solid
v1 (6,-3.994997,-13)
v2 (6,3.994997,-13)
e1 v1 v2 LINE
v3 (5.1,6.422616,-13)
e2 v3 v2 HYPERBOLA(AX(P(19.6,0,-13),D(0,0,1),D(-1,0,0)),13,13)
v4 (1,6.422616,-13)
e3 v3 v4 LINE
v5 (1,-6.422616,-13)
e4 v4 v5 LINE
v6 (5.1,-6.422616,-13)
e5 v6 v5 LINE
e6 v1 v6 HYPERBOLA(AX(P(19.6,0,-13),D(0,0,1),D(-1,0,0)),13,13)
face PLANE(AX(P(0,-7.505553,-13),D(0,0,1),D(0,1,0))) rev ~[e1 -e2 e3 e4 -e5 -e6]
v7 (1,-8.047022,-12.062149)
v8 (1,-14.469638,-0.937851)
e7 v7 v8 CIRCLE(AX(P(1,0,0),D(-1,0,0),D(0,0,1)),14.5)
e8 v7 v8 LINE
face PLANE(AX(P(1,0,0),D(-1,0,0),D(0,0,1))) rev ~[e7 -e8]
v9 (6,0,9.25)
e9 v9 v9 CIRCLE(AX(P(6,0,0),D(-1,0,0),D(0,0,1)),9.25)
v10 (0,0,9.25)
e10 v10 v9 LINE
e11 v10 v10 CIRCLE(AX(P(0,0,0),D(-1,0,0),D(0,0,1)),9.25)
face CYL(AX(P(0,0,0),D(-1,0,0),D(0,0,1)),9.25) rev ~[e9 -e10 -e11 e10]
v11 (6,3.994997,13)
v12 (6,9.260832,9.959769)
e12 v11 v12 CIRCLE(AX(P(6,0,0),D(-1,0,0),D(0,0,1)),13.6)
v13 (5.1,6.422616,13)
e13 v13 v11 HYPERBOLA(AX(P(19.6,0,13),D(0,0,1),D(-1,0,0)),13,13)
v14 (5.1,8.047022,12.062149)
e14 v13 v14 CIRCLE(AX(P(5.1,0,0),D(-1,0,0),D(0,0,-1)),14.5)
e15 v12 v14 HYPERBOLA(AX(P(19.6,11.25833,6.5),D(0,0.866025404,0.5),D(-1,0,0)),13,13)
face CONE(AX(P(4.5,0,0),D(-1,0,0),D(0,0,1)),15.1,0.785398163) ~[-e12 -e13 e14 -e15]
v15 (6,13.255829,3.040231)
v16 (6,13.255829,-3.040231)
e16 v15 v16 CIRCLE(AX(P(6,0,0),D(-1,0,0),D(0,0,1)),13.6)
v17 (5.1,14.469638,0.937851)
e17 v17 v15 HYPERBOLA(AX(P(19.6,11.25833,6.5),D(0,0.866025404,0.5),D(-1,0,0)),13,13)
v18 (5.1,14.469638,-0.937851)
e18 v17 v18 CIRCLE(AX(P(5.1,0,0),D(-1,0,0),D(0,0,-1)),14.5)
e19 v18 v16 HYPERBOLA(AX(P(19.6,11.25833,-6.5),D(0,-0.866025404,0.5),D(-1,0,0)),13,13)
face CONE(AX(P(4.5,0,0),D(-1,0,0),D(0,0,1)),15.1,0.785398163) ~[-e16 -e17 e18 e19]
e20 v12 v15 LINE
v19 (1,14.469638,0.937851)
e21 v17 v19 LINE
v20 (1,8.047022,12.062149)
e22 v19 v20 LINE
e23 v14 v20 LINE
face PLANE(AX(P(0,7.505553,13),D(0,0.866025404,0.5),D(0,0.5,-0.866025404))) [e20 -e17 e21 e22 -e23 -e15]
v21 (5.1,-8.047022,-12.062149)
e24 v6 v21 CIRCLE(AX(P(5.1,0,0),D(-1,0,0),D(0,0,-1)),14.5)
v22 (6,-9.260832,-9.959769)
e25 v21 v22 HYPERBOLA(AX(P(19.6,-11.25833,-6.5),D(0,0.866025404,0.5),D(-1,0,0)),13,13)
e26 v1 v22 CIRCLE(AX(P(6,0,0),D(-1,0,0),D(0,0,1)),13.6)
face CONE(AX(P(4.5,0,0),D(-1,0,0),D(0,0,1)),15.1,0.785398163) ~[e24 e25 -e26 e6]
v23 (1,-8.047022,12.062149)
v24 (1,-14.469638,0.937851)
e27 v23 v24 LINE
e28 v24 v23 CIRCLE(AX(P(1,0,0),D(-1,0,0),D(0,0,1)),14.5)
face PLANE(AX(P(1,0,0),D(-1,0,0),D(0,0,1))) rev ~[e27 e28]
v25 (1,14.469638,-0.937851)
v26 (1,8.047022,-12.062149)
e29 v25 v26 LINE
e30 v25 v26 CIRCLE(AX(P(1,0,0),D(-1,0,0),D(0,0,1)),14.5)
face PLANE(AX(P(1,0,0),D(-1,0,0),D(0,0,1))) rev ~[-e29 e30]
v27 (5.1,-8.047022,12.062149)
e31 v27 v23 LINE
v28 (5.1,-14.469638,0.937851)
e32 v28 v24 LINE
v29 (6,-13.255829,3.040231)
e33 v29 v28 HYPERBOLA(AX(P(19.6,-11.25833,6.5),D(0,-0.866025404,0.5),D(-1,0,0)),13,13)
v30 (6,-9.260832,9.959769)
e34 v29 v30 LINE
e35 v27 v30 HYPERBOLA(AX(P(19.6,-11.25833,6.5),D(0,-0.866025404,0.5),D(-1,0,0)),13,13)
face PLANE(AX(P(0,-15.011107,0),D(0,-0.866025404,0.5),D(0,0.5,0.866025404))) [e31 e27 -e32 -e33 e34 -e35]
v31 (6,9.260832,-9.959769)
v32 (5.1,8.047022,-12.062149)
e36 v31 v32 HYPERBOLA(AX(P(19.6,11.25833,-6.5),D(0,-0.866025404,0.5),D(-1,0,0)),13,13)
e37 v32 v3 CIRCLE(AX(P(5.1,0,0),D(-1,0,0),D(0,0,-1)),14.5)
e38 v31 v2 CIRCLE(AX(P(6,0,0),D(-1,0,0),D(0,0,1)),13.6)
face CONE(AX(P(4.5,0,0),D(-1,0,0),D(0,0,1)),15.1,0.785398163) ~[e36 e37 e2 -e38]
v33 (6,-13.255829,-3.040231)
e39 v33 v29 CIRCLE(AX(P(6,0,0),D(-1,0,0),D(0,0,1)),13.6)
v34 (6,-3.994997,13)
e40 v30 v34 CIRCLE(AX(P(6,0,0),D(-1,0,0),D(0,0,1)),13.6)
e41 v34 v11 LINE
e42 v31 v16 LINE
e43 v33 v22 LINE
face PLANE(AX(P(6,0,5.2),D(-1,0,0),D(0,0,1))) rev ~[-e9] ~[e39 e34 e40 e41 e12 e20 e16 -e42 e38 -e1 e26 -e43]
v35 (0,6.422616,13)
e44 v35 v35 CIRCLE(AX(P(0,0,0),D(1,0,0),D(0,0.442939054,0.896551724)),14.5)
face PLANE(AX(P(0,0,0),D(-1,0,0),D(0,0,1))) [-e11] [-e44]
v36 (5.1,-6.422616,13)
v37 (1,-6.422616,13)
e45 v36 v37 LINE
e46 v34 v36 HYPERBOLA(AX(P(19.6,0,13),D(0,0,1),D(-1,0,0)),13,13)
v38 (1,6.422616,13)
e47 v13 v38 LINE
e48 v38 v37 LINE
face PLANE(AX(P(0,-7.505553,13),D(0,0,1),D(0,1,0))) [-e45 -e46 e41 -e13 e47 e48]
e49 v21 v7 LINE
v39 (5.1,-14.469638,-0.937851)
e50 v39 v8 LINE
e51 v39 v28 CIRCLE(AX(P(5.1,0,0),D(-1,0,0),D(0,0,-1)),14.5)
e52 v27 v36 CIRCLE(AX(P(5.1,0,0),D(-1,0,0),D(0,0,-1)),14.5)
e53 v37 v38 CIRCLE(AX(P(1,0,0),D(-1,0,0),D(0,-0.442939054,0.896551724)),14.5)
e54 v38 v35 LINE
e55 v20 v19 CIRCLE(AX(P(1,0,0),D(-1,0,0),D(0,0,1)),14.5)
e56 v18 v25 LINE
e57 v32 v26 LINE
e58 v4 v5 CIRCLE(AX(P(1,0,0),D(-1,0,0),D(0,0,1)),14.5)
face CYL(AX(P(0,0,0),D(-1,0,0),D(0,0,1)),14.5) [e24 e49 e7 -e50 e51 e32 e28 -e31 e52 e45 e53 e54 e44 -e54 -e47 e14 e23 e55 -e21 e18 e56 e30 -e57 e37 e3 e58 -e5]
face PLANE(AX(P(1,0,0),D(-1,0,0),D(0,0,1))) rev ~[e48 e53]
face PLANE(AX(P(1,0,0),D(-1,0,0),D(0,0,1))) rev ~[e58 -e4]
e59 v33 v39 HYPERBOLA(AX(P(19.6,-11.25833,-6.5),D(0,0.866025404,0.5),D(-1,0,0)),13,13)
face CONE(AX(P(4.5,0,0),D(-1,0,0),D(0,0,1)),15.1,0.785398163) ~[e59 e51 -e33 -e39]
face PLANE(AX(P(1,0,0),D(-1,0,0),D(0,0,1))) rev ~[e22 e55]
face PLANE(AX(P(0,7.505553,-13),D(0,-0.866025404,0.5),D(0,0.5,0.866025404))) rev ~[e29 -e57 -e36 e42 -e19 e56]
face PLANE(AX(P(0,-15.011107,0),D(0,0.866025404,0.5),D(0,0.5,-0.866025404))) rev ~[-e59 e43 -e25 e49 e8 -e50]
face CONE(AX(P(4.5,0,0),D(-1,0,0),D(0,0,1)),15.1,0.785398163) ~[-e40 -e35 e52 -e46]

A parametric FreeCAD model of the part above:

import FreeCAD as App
import Part
import Sketcher
from FreeCAD import Vector
Q = App.Units.Quantity

doc = App.newDocument("Part")
body = doc.addObject("PartDesign::Body", "Body")

# Sketch on YZ plane
sketch1 = body.newObject("Sketcher::SketchObject", "Sketch")
sketch1.AttachmentSupport = (doc.getObject("YZ_Plane"), [""])
sketch1.MapMode = "FlatFace"
sketch1.addGeometry(Part.LineSegment(Vector(-8, 13, 0), Vector(-15, 0, 0)), False)
sketch1.addGeometry(Part.LineSegment(Vector(-15, 0, 0), Vector(-8, -13, 0)), False)
sketch1.addGeometry(Part.LineSegment(Vector(-8, -13, 0), Vector(8, -13, 0)), False)
sketch1.addGeometry(Part.LineSegment(Vector(8, -13, 0), Vector(15, 0, 0)), False)
sketch1.addGeometry(Part.LineSegment(Vector(15, 0, 0), Vector(8, 13, 0)), False)
sketch1.addGeometry(Part.LineSegment(Vector(8, 13, 0), Vector(-8, 13, 0)), False)
sketch1.addConstraint(Sketcher.Constraint("Coincident", 0, 2, 1, 1))
sketch1.addConstraint(Sketcher.Constraint("Coincident", 1, 2, 2, 1))
sketch1.addConstraint(Sketcher.Constraint("Coincident", 2, 2, 3, 1))
sketch1.addConstraint(Sketcher.Constraint("Coincident", 3, 2, 4, 1))
sketch1.addConstraint(Sketcher.Constraint("Coincident", 4, 2, 5, 1))
sketch1.addConstraint(Sketcher.Constraint("Coincident", 5, 2, 0, 1))
sketch1.addConstraint(Sketcher.Constraint("Horizontal", 2))
sketch1.addConstraint(Sketcher.Constraint("Horizontal", 5))
sketch1.addConstraint(Sketcher.Constraint("Symmetric", 0, 2, 3, 2, -1, 1))
sketch1.addConstraint(Sketcher.Constraint("Symmetric", 1, 2, 4, 2, -1, 1))
sketch1.addConstraint(Sketcher.Constraint("PointOnObject", 0, 2, -1))
sketch1.addConstraint(Sketcher.Constraint("Parallel", 0, 3))
sketch1.addConstraint(Sketcher.Constraint("Vertical", 2, 2, 4, 2))
sketch1.addConstraint(Sketcher.Constraint("Angle", 0, Q("-120 deg")))
sketch1.addConstraint(Sketcher.Constraint("DistanceY", 1, 2, -1, 1, Q("13 mm")))
sketch1.addConstraint(Sketcher.Constraint("DistanceX", 2, 1, 2, 2, Q("15.011107 mm")))
pad1 = body.newObject("PartDesign::Pad", "Pad")
pad1.Profile = sketch1
pad1.Length = 6

# Sketch on YZ plane
sketch2 = body.newObject("Sketcher::SketchObject", "Sketch001")
sketch2.AttachmentSupport = (doc.getObject("YZ_Plane"), [""])
sketch2.MapMode = "FlatFace"
sketch2.addGeometry(Part.Circle(Vector(0, 0, 0), Vector(0, 0, 1), 14), False)
sketch2.addConstraint(Sketcher.Constraint("Coincident", 0, 3, -1, 1))
sketch2.addConstraint(Sketcher.Constraint("Diameter", 0, Q("29 mm")))
pad2 = body.newObject("PartDesign::Pad", "Pad001")
pad2.Profile = sketch2
pad2.Length = 1

# Sketch on YZ plane
sketch3 = body.newObject("Sketcher::SketchObject", "Sketch002")
sketch3.AttachmentSupport = (doc.getObject("YZ_Plane"), [""])
sketch3.MapMode = "FlatFace"
sketch3.addGeometry(Part.Circle(Vector(0, 0, 0), Vector(0, 0, 1), 15), False)
sketch3.addGeometry(Part.Circle(Vector(0, 0, 0), Vector(0, 0, 1), 14), False)
sketch3.addConstraint(Sketcher.Constraint("Coincident", 0, 3, -1, 1))
sketch3.addConstraint(Sketcher.Constraint("Coincident", 1, 3, -1, 1))
sketch3.addConstraint(Sketcher.Constraint("Diameter", 1, Q("29 mm")))
sketch3.addConstraint(Sketcher.Constraint("Diameter", 0, Q("30.022214 mm")))
pocket1 = body.newObject("PartDesign::Pocket", "Pocket")
pocket1.Profile = sketch3
pocket1.Type = "ThroughAll"
pocket1.Reversed = True

# Sketch on YZ plane
sketch4 = body.newObject("Sketcher::SketchObject", "Sketch003")
sketch4.AttachmentSupport = (doc.getObject("YZ_Plane"), [""])
sketch4.MapMode = "FlatFace"
sketch4.addGeometry(Part.Circle(Vector(0, 0, 0), Vector(0, 0, 1), 9), False)
sketch4.addConstraint(Sketcher.Constraint("Coincident", 0, 3, -1, 1))
sketch4.addConstraint(Sketcher.Constraint("Diameter", 0, Q("18.5 mm")))
pocket2 = body.newObject("PartDesign::Pocket", "Pocket001")
pocket2.Profile = sketch4
pocket2.Type = "ThroughAll"
pocket2.Reversed = True

# Sketch on XY plane
sketch5 = body.newObject("Sketcher::SketchObject", "Sketch004")
sketch5.AttachmentSupport = (doc.getObject("XY_Plane"), [""])
sketch5.MapMode = "FlatFace"
sketch5.addGeometry(Part.LineSegment(Vector(4.5, 15.1, 0), Vector(6, 13.6, 0)), False)
sketch5.addGeometry(Part.LineSegment(Vector(6, 13.6, 0), Vector(6, 15.1, 0)), False)
sketch5.addGeometry(Part.LineSegment(Vector(6, 15.1, 0), Vector(4.5, 15.1, 0)), False)
sketch5.addConstraint(Sketcher.Constraint("Coincident", 0, 2, 1, 1))
sketch5.addConstraint(Sketcher.Constraint("Coincident", 1, 2, 2, 1))
sketch5.addConstraint(Sketcher.Constraint("Coincident", 2, 2, 0, 1))
sketch5.addConstraint(Sketcher.Constraint("Vertical", 1))
sketch5.addConstraint(Sketcher.Constraint("Horizontal", 2))
sketch5.addConstraint(Sketcher.Constraint("Equal", 2, 1))
sketch5.addConstraint(Sketcher.Constraint("DistanceX", 2, 2, 2, 1, Q("1.5 mm")))
sketch5.addConstraint(Sketcher.Constraint("DistanceX", -1, 1, 0, 2, Q("6 mm")))
sketch5.addConstraint(Sketcher.Constraint("DistanceY", -1, 1, 0, 2, Q("13.6 mm")))
groove = body.newObject("PartDesign::Groove", "Groove")
groove.Profile = sketch5
groove.ReferenceAxis = (sketch5, ["H_Axis"])
groove.Angle = 360

doc.recompute()
